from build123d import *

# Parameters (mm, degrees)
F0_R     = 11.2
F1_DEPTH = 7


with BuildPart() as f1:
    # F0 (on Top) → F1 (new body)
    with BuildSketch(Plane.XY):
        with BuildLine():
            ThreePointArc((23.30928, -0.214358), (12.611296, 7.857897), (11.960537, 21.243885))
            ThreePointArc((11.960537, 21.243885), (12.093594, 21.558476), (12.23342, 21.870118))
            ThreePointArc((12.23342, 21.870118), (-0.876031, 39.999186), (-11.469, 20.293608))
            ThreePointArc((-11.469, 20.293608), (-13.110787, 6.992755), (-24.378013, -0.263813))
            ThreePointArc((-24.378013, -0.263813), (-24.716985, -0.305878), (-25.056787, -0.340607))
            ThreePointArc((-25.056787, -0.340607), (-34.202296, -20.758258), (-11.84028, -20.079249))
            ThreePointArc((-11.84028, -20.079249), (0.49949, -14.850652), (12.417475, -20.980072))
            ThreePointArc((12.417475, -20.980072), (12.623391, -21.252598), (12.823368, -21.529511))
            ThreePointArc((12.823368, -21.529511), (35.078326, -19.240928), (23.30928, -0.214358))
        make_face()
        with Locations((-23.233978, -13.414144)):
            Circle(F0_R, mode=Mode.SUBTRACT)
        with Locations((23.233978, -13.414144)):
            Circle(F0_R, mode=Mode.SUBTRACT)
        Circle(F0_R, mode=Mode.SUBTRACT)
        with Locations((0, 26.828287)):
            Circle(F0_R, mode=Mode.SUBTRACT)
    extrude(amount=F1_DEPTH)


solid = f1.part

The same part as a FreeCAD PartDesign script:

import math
import FreeCAD as App
import Part
import Sketcher
from FreeCAD import Vector

doc = App.newDocument("Part")
body = doc.addObject("PartDesign::Body", "Body")

# Sketch on XY plane
sketch1 = body.newObject("Sketcher::SketchObject", "Sketch")
sketch1.AttachmentSupport = (doc.getObject("XY_Plane"), [""])
sketch1.MapMode = "FlatFace"
sketch1.addGeometry([
    Part.ArcOfCircle(Part.Circle(Vector(26.5804, 15.245816, 0), Vector(0, 0, 1), 15.802443), math.radians(157.693204), math.radians(258.053345)),  # 0
    Part.ArcOfCircle(Part.Circle(Vector(26.579729, 15.246097, 0), Vector(0, 0, 1), 15.801716), math.radians(155.216144), math.radians(157.693223)),  # 1
    Part.ArcOfCircle(Part.Circle(Vector(0, 26.828287, 0), Vector(0, 0, 1), 13.2), math.radians(-22.062569), math.radians(209.673144)),  # 2
    Part.ArcOfCircle(Part.Circle(Vector(-26.493466, 15.396395, 0), Vector(0, 0, 1), 15.802445), math.radians(-82.306792), math.radians(18.053337)),  # 3
    Part.ArcOfCircle(Part.Circle(Vector(-26.493561, 15.397085, 0), Vector(0, 0, 1), 15.803141), math.radians(-84.783638), math.radians(-82.306786)),  # 4
    Part.ArcOfCircle(Part.Circle(Vector(-23.233979, -13.414144, 0), Vector(0, 0, 1), 13.2), math.radians(97.937427), math.radians(329.673147)),  # 5
    Part.ArcOfCircle(Part.Circle(Vector(-0.086937, -30.642212, 0), Vector(0, 0, 1), 15.802445), math.radians(37.693208), math.radians(138.053336)),  # 6
    Part.ArcOfCircle(Part.Circle(Vector(-0.086146, -30.641651, 0), Vector(0, 0, 1), 15.801476), math.radians(35.216236), math.radians(37.693352)),  # 7
    Part.ArcOfCircle(Part.Circle(Vector(23.233978, -13.414143, 0), Vector(0, 0, 1), 13.2), math.radians(-142.062567), math.radians(89.673144)),  # 8
    Part.Circle(Vector(-23.233978, -13.414144, 0), Vector(0, 0, 1), 11.2),  # 9
    Part.Circle(Vector(23.233978, -13.414144, 0), Vector(0, 0, 1), 11.2),  # 10
    Part.Circle(Vector(0, 0, 0), Vector(0, 0, 1), 11.2),  # 11
    Part.Circle(Vector(0, 26.828287, 0), Vector(0, 0, 1), 11.2),  # 12
], False)
sketch1.addConstraint([
    Sketcher.Constraint("Coincident", 0, 1, 1, 2),
    Sketcher.Constraint("Coincident", 1, 1, 2, 1),
    Sketcher.Constraint("Coincident", 2, 2, 3, 2),
    Sketcher.Constraint("Coincident", 3, 1, 4, 2),
    Sketcher.Constraint("Coincident", 4, 1, 5, 1),
    Sketcher.Constraint("Coincident", 5, 2, 6, 2),
    Sketcher.Constraint("Coincident", 6, 1, 7, 2),
    Sketcher.Constraint("Coincident", 7, 1, 8, 1),
    Sketcher.Constraint("Coincident", 8, 2, 0, 2),
    Sketcher.Constraint("Coincident", 11, 3, -1, 1),
    Sketcher.Constraint("Coincident", 9, 3, 5, 3),
    Sketcher.Constraint("Coincident", 10, 3, 8, 3),
    Sketcher.Constraint("Coincident", 12, 3, 2, 3),
    Sketcher.Constraint("PointOnObject", 2, 3, -2),
    Sketcher.Constraint("Diameter", 9, 22.4),
    Sketcher.Constraint("Diameter", 10, 22.4),
    Sketcher.Constraint("Diameter", 11, 22.4),
    Sketcher.Constraint("Diameter", 12, 22.4),
    Sketcher.Constraint("Radius", 2, 13.2),
    Sketcher.Constraint("Radius", 5, 13.2),
    Sketcher.Constraint("Radius", 8, 13.2),
    Sketcher.Constraint("Radius", 4, 15.803141),
    Sketcher.Constraint("DistanceX", 2, 2, -1, 1, 11.469),
    Sketcher.Constraint("Radius", 0, 15.802443),
    Sketcher.Constraint("Radius", 1, 15.801716),
    Sketcher.Constraint("Radius", 3, 15.802445),
    Sketcher.Constraint("Radius", 6, 15.802445),
    Sketcher.Constraint("Radius", 7, 15.801476),
    Sketcher.Constraint("DistanceX", -1, 1, 0, 3, 26.5804),
    Sketcher.Constraint("DistanceY", 1, 3, 3, 3, 0.150298),
    Sketcher.Constraint("DistanceY", 0, 1, 12, 3, 5.584402),
    Sketcher.Constraint("DistanceY", 0, 3, 1, 1, 6.624302),
    Sketcher.Constraint("DistanceX", 5, 3, 5, 2, 11.393699),
    Sketcher.Constraint("DistanceY", 6, 3, 7, 1, 9.112701),
    Sketcher.Constraint("DistanceX", 8, 3, 8, 2, 0.075302),
    Sketcher.Constraint("DistanceX", -1, 1, 1, 3, 26.579729),
    Sketcher.Constraint("DistanceX", 4, 3, -1, 1, 26.493561),
    Sketcher.Constraint("DistanceX", 5, 3, -1, 1, 23.233979),
    Sketcher.Constraint("DistanceY", 7, 3, -1, 1, 30.641651),
    Sketcher.Constraint("DistanceX", -1, 1, 8, 3, 23.233978),
    Sketcher.Constraint("DistanceY", 5, 2, -1, 1, 20.079249),
    Sketcher.Constraint("DistanceY", 7, 1, -1, 1, 21.529511),
    Sketcher.Constraint("DistanceY", 5, 3, 3, 1, 13.150331),
    Sketcher.Constraint("DistanceY", 6, 1, 10, 3, 7.565928),
])
pad1 = body.newObject("PartDesign::Pad", "Pad")
pad1.Profile = sketch1
pad1.Length = 7

doc.recompute()
